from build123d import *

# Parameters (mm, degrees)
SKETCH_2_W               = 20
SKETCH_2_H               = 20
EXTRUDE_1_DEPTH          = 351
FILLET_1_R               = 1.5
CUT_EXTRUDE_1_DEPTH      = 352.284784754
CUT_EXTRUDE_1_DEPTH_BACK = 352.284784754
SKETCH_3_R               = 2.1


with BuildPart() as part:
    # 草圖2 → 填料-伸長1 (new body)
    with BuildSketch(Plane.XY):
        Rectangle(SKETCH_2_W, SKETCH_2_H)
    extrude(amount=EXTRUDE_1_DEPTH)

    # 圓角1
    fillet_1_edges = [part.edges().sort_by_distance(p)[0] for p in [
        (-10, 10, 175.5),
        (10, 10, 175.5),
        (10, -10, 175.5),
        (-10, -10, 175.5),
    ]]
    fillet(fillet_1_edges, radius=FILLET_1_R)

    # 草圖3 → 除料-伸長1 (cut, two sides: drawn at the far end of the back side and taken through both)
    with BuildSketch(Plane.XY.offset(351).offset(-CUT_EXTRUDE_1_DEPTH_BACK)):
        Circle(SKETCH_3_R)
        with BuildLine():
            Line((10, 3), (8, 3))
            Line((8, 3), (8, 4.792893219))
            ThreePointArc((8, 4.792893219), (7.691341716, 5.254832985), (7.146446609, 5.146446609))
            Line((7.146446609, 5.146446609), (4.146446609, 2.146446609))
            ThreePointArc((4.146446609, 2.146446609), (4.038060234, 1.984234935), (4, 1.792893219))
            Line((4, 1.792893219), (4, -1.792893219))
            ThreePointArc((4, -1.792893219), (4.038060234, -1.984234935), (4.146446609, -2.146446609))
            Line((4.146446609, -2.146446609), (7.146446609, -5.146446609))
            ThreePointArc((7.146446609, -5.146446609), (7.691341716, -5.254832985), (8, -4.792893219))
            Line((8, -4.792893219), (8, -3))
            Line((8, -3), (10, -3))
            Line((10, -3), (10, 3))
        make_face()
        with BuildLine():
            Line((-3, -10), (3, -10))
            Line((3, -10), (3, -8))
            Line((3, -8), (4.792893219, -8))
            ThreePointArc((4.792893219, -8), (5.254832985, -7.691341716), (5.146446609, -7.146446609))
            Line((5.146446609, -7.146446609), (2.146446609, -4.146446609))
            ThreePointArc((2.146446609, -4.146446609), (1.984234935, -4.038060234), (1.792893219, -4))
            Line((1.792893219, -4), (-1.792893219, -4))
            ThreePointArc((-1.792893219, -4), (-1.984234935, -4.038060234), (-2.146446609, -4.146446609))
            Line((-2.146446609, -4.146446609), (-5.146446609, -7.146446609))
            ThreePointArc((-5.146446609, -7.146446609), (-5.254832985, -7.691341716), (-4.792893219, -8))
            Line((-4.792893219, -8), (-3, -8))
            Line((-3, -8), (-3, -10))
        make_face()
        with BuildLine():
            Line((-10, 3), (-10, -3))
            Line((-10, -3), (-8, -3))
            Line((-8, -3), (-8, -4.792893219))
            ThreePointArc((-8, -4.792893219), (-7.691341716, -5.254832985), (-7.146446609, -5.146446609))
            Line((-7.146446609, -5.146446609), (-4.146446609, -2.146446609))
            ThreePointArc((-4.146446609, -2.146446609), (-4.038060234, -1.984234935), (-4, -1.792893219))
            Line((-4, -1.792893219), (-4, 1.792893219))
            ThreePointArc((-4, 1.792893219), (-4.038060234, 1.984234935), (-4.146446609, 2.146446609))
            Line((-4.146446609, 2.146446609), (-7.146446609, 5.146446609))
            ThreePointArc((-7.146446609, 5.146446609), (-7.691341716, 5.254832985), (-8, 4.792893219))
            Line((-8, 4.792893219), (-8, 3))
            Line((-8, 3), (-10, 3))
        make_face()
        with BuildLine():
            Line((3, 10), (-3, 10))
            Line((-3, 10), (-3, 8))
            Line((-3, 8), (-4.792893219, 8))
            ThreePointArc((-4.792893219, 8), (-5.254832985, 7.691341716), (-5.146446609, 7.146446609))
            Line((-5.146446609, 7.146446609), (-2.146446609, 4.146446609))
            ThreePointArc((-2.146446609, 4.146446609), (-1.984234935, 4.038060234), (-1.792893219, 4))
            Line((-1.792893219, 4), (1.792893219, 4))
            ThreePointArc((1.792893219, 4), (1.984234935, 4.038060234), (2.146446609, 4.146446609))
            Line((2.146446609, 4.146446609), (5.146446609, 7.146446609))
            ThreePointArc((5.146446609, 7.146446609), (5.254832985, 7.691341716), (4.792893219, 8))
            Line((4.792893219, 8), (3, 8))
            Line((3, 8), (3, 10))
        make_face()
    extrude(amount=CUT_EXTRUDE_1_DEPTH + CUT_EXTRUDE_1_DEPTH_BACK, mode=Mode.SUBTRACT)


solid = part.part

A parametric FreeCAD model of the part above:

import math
import FreeCAD as App
import Part
import Sketcher

V = App.Vector
Q = App.Units.Quantity


def edges_at(feature, points):
    """Names of the edges that pass closest to the given points."""
    edges = feature.Shape.Edges
    near = lambda p: min(range(len(edges)), key=lambda i: edges[i].distToShape(Part.Vertex(*p))[0])
    return sorted({f"Edge{near(p) + 1}" for p in points})

doc = App.newDocument("Part")
body = doc.addObject("PartDesign::Body", "Body")

# Sketch on XY plane
sketch1 = body.newObject("Sketcher::SketchObject", "Sketch")
sketch1.AttachmentSupport = (doc.getObject("XY_Plane"), [""])
sketch1.MapMode = "FlatFace"
sketch1.addGeometry([
    Part.LineSegment(V(-10, 10, 0), V(-10, -10, 0)),
    Part.LineSegment(V(-10, -10, 0), V(10, -10, 0)),
    Part.LineSegment(V(10, -10, 0), V(10, 10, 0)),
    Part.LineSegment(V(10, 10, 0), V(-10, 10, 0)),
], False)
sketch1.addConstraint([
    Sketcher.Constraint("Coincident", 0, 2, 1, 1),
    Sketcher.Constraint("Coincident", 1, 2, 2, 1),
    Sketcher.Constraint("Coincident", 2, 2, 3, 1),
    Sketcher.Constraint("Coincident", 3, 2, 0, 1),
    Sketcher.Constraint("Vertical", 0),
    Sketcher.Constraint("Horizontal", 1),
    Sketcher.Constraint("Vertical", 2),
    Sketcher.Constraint("Horizontal", 3),
    Sketcher.Constraint("Symmetric", 0, 2, 2, 2, -1, 1),
    Sketcher.Constraint("Equal", 3, 0),
    Sketcher.Constraint("DistanceX", 1, 1, 1, 2, Q("20 mm")),
])
pad1 = body.newObject("PartDesign::Pad", "Pad")
pad1.Profile = sketch1
pad1.Length = 351
doc.recompute()

fillet = body.newObject("PartDesign::Fillet", "Fillet")
fillet.Base = (pad1, edges_at(pad1, [
    (-10, 10, 175.5),
    (10, 10, 175.5),
    (10, -10, 175.5),
    (-10, -10, 175.5),
]))
fillet.Radius = 1.5

# Sketch on XY plane
sketch2 = body.newObject("Sketcher::SketchObject", "Sketch001")
sketch2.AttachmentSupport = (doc.getObject("XY_Plane"), [""])
sketch2.MapMode = "FlatFace"
sketch2.AttachmentOffset = App.Placement(V(0, 0, 351), App.Rotation())
sketch2.addGeometry([
    Part.Circle(V(0, 0, 0), V(0, 0, 1), 2.1),  # 0
    Part.LineSegment(V(10, 3, 0), V(8, 3, 0)),  # 1
    Part.LineSegment(V(8, 3, 0), V(8, 4.79, 0)),  # 2
    Part.ArcOfCircle(Part.Circle(V(7.5, 4.79, 0), V(0, 0, 1), 0.5), math.radians(0), math.radians(135)),  # 3
    Part.LineSegment(V(7.15, 5.15, 0), V(4.15, 2.15, 0)),  # 4
    Part.ArcOfCircle(Part.Circle(V(4.5, 1.79, 0), V(0, 0, 1), 0.5), math.radians(135), math.radians(180)),  # 5
    Part.LineSegment(V(4, 1.79, 0), V(4, -1.79, 0)),  # 6
    Part.ArcOfCircle(Part.Circle(V(4.5, -1.79, 0), V(0, 0, 1), 0.5), math.radians(-180), math.radians(-135)),  # 7
    Part.LineSegment(V(4.15, -2.15, 0), V(7.15, -5.15, 0)),  # 8
    Part.ArcOfCircle(Part.Circle(V(7.5, -4.79, 0), V(0, 0, 1), 0.5), math.radians(-135), math.radians(0)),  # 9
    Part.LineSegment(V(8, -4.79, 0), V(8, -3, 0)),  # 10
    Part.LineSegment(V(8, -3, 0), V(10, -3, 0)),  # 11
    Part.LineSegment(V(10, -3, 0), V(10, 3, 0)),  # 12
    Part.LineSegment(V(-3, -10, 0), V(3, -10, 0)),  # 13
    Part.LineSegment(V(3, -10, 0), V(3, -8, 0)),  # 14
    Part.LineSegment(V(3, -8, 0), V(4.79, -8, 0)),  # 15
    Part.ArcOfCircle(Part.Circle(V(4.79, -7.5, 0), V(0, 0, 1), 0.5), math.radians(-90), math.radians(45)),  # 16
    Part.LineSegment(V(5.15, -7.15, 0), V(2.15, -4.15, 0)),  # 17
    Part.ArcOfCircle(Part.Circle(V(1.79, -4.5, 0), V(0, 0, 1), 0.5), math.radians(45), math.radians(90)),  # 18
    Part.LineSegment(V(1.79, -4, 0), V(-1.79, -4, 0)),  # 19
    Part.ArcOfCircle(Part.Circle(V(-1.79, -4.5, 0), V(0, 0, 1), 0.5), math.radians(90), math.radians(135)),  # 20
    Part.LineSegment(V(-2.15, -4.15, 0), V(-5.15, -7.15, 0)),  # 21
    Part.ArcOfCircle(Part.Circle(V(-4.79, -7.5, 0), V(0, 0, 1), 0.5), math.radians(135), math.radians(270)),  # 22
    Part.LineSegment(V(-4.79, -8, 0), V(-3, -8, 0)),  # 23
    Part.LineSegment(V(-3, -8, 0), V(-3, -10, 0)),  # 24
    Part.LineSegment(V(-10, 3, 0), V(-10, -3, 0)),  # 25
    Part.LineSegment(V(-10, -3, 0), V(-8, -3, 0)),  # 26
    Part.LineSegment(V(-8, -3, 0), V(-8, -4.79, 0)),  # 27
    Part.ArcOfCircle(Part.Circle(V(-7.5, -4.79, 0), V(0, 0, 1), 0.5), math.radians(180), math.radians(315)),  # 28
    Part.LineSegment(V(-7.15, -5.15, 0), V(-4.15, -2.15, 0)),  # 29
    Part.ArcOfCircle(Part.Circle(V(-4.5, -1.79, 0), V(0, 0, 1), 0.5), math.radians(-45), math.radians(0)),  # 30
    Part.LineSegment(V(-4, -1.79, 0), V(-4, 1.79, 0)),  # 31
    Part.ArcOfCircle(Part.Circle(V(-4.5, 1.79, 0), V(0, 0, 1), 0.5), math.radians(0), math.radians(45)),  # 32
    Part.LineSegment(V(-4.15, 2.15, 0), V(-7.15, 5.15, 0)),  # 33
    Part.ArcOfCircle(Part.Circle(V(-7.5, 4.79, 0), V(0, 0, 1), 0.5), math.radians(45), math.radians(180)),  # 34
    Part.LineSegment(V(-8, 4.79, 0), V(-8, 3, 0)),  # 35
    Part.LineSegment(V(-8, 3, 0), V(-10, 3, 0)),  # 36
    Part.LineSegment(V(3, 10, 0), V(-3, 10, 0)),  # 37
    Part.LineSegment(V(-3, 10, 0), V(-3, 8, 0)),  # 38
    Part.LineSegment(V(-3, 8, 0), V(-4.79, 8, 0)),  # 39
    Part.ArcOfCircle(Part.Circle(V(-4.79, 7.5, 0), V(0, 0, 1), 0.5), math.radians(90), math.radians(225)),  # 40
    Part.LineSegment(V(-5.15, 7.15, 0), V(-2.15, 4.15, 0)),  # 41
    Part.ArcOfCircle(Part.Circle(V(-1.79, 4.5, 0), V(0, 0, 1), 0.5), math.radians(-135), math.radians(-90)),  # 42
    Part.LineSegment(V(-1.79, 4, 0), V(1.79, 4, 0)),  # 43
    Part.ArcOfCircle(Part.Circle(V(1.79, 4.5, 0), V(0, 0, 1), 0.5), math.radians(-90), math.radians(-45)),  # 44
    Part.LineSegment(V(2.15, 4.15, 0), V(5.15, 7.15, 0)),  # 45
    Part.ArcOfCircle(Part.Circle(V(4.79, 7.5, 0), V(0, 0, 1), 0.5), math.radians(-45), math.radians(90)),  # 46
    Part.LineSegment(V(4.79, 8, 0), V(3, 8, 0)),  # 47
    Part.LineSegment(V(3, 8, 0), V(3, 10, 0)),  # 48
], False)
sketch2.addConstraint([
    Sketcher.Constraint("Coincident", 1, 2, 2, 1),
    Sketcher.Constraint("Tangent", 2, 2, 3, 1),
    Sketcher.Constraint("Tangent", 3, 2, 4, 1),
    Sketcher.Constraint("Tangent", 4, 2, 5, 1),
    Sketcher.Constraint("Tangent", 5, 2, 6, 1),
    Sketcher.Constraint("Tangent", 6, 2, 7, 1),
    Sketcher.Constraint("Tangent", 7, 2, 8, 1),
    Sketcher.Constraint("Tangent", 8, 2, 9, 1),
    Sketcher.Constraint("Tangent", 9, 2, 10, 1),
    Sketcher.Constraint("Coincident", 10, 2, 11, 1),
    Sketcher.Constraint("Coincident", 11, 2, 12, 1),
    Sketcher.Constraint("Coincident", 12, 2, 1, 1),
    Sketcher.Constraint("Coincident", 13, 2, 14, 1),
    Sketcher.Constraint("Coincident", 14, 2, 15, 1),
    Sketcher.Constraint("Tangent", 15, 2, 16, 1),
    Sketcher.Constraint("Tangent", 16, 2, 17, 1),
    Sketcher.Constraint("Tangent", 17, 2, 18, 1),
    Sketcher.Constraint("Tangent", 18, 2, 19, 1),
    Sketcher.Constraint("Tangent", 19, 2, 20, 1),
    Sketcher.Constraint("Tangent", 20, 2, 21, 1),
    Sketcher.Constraint("Tangent", 21, 2, 22, 1),
    Sketcher.Constraint("Tangent", 22, 2, 23, 1),
    Sketcher.Constraint("Coincident", 23, 2, 24, 1),
    Sketcher.Constraint("Coincident", 24, 2, 13, 1),
    Sketcher.Constraint("Coincident", 25, 2, 26, 1),
    Sketcher.Constraint("Coincident", 26, 2, 27, 1),
    Sketcher.Constraint("Tangent", 27, 2, 28, 1),
    Sketcher.Constraint("Tangent", 28, 2, 29, 1),
    Sketcher.Constraint("Tangent", 29, 2, 30, 1),
    Sketcher.Constraint("Tangent", 30, 2, 31, 1),
    Sketcher.Constraint("Tangent", 31, 2, 32, 1),
    Sketcher.Constraint("Tangent", 32, 2, 33, 1),
    Sketcher.Constraint("Tangent", 33, 2, 34, 1),
    Sketcher.Constraint("Tangent", 34, 2, 35, 1),
    Sketcher.Constraint("Coincident", 35, 2, 36, 1),
    Sketcher.Constraint("Coincident", 36, 2, 25, 1),
    Sketcher.Constraint("Coincident", 37, 2, 38, 1),
    Sketcher.Constraint("Coincident", 38, 2, 39, 1),
    Sketcher.Constraint("Tangent", 39, 2, 40, 1),
    Sketcher.Constraint("Tangent", 40, 2, 41, 1),
    Sketcher.Constraint("Tangent", 41, 2, 42, 1),
    Sketcher.Constraint("Tangent", 42, 2, 43, 1),
    Sketcher.Constraint("Tangent", 43, 2, 44, 1),
    Sketcher.Constraint("Tangent", 44, 2, 45, 1),
    Sketcher.Constraint("Tangent", 45, 2, 46, 1),
    Sketcher.Constraint("Tangent", 46, 2, 47, 1),
    Sketcher.Constraint("Coincident", 47, 2, 48, 1),
    Sketcher.Constraint("Coincident", 48, 2, 37, 1),
    Sketcher.Constraint("Horizontal", 1),
    Sketcher.Constraint("Vertical", 2),
    Sketcher.Constraint("Vertical", 6),
    Sketcher.Constraint("Vertical", 10),
    Sketcher.Constraint("Horizontal", 11),
    Sketcher.Constraint("Vertical", 12),
    Sketcher.Constraint("Horizontal", 13),
    Sketcher.Constraint("Vertical", 14),
    Sketcher.Constraint("Horizontal", 15),
    Sketcher.Constraint("Horizontal", 19),
    Sketcher.Constraint("Horizontal", 23),
    Sketcher.Constraint("Vertical", 24),
    Sketcher.Constraint("Vertical", 25),
    Sketcher.Constraint("Horizontal", 26),
    Sketcher.Constraint("Vertical", 27),
    Sketcher.Constraint("Vertical", 31),
    Sketcher.Constraint("Vertical", 35),
    Sketcher.Constraint("Horizontal", 36),
    Sketcher.Constraint("Horizontal", 37),
    Sketcher.Constraint("Vertical", 38),
    Sketcher.Constraint("Horizontal", 39),
    Sketcher.Constraint("Horizontal", 43),
    Sketcher.Constraint("Horizontal", 47),
    Sketcher.Constraint("Vertical", 48),
    Sketcher.Constraint("Coincident", 0, 3, -1, 1),
    Sketcher.Constraint("Equal", 3, 5),
    Sketcher.Constraint("Equal", 5, 7),
    Sketcher.Constraint("Equal", 7, 9),
    Sketcher.Constraint("Equal", 9, 16),
    Sketcher.Constraint("Equal", 16, 18),
    Sketcher.Constraint("Equal", 18, 20),
    Sketcher.Constraint("Equal", 20, 22),
    Sketcher.Constraint("Equal", 22, 28),
    Sketcher.Constraint("Equal", 28, 30),
    Sketcher.Constraint("Equal", 30, 32),
    Sketcher.Constraint("Equal", 32, 34),
    Sketcher.Constraint("Equal", 34, 40),
    Sketcher.Constraint("Equal", 40, 42),
    Sketcher.Constraint("Equal", 42, 44),
    Sketcher.Constraint("Equal", 44, 46),
    Sketcher.Constraint("Symmetric", 3, 3, 28, 3, -1, 1),
    Sketcher.Constraint("Symmetric", 5, 3, 30, 3, -1, 1),
    Sketcher.Constraint("Symmetric", 9, 3, 34, 3, -1, 1),
    Sketcher.Constraint("Symmetric", 16, 3, 40, 3, -1, 1),
    Sketcher.Constraint("Symmetric", 18, 3, 42, 3, -1, 1),
    Sketcher.Constraint("Symmetric", 22, 3, 46, 3, -1, 1),
    Sketcher.Constraint("Symmetric", 12, 2, 25, 2, -1, 1),
    Sketcher.Constraint("Symmetric", 13, 2, 37, 2, -1, 1),
    Sketcher.Constraint("Symmetric", 16, 3, 22, 3, -2),
    Sketcher.Constraint("Symmetric", 9, 3, 28, 3, -2),
    Sketcher.Constraint("Perpendicular", 4, 8),
    Sketcher.Constraint("Parallel", 8, 17),
    Sketcher.Constraint("Perpendicular", 17, 21),
    Sketcher.Constraint("Perpendicular", 29, 33),
    Sketcher.Constraint("Perpendicular", 41, 45),
    Sketcher.Constraint("Horizontal", 7, 3, 30, 3),
    Sketcher.Constraint("Horizontal", 11, 2, 25, 2),
    Sketcher.Constraint("Horizontal", 12, 2, 35, 2),
    Sketcher.Constraint("Vertical", 24, 2, 37, 2),
    Sketcher.Constraint("Vertical", 14, 2, 47, 2),
    Sketcher.Constraint("Equal", 47, 2),
    Sketcher.Constraint("Equal", 43, 6),
    Sketcher.Constraint("Equal", 37, 12),
    Sketcher.Constraint("Equal", 36, 14),
    Sketcher.Constraint("Diameter", 0, Q("4.2 mm")),
    Sketcher.Constraint("Radius", 3, Q("0.5 mm")),
    Sketcher.Constraint("DistanceX", 1, 2, 1, 1, Q("2 mm")),
    Sketcher.Constraint("DistanceX", 13, 1, 13, 2, Q("6 mm")),
    Sketcher.Constraint("DistanceX", -1, 1, 1, 2, Q("8 mm")),
    Sketcher.Constraint("DistanceX", -1, 1, 5, 2, Q("4 mm")),
    Sketcher.Constraint("DistanceY", 13, 2, -1, 1, Q("10 mm")),
    Sketcher.Constraint("DistanceX", 15, 1, 15, 2, Q("1.792893 mm")),
])
pocket1 = body.newObject("PartDesign::Pocket", "Pocket")
pocket1.Profile = sketch2
pocket1.Type = "ThroughAll"
pocket1.Midplane = True

doc.recompute()
